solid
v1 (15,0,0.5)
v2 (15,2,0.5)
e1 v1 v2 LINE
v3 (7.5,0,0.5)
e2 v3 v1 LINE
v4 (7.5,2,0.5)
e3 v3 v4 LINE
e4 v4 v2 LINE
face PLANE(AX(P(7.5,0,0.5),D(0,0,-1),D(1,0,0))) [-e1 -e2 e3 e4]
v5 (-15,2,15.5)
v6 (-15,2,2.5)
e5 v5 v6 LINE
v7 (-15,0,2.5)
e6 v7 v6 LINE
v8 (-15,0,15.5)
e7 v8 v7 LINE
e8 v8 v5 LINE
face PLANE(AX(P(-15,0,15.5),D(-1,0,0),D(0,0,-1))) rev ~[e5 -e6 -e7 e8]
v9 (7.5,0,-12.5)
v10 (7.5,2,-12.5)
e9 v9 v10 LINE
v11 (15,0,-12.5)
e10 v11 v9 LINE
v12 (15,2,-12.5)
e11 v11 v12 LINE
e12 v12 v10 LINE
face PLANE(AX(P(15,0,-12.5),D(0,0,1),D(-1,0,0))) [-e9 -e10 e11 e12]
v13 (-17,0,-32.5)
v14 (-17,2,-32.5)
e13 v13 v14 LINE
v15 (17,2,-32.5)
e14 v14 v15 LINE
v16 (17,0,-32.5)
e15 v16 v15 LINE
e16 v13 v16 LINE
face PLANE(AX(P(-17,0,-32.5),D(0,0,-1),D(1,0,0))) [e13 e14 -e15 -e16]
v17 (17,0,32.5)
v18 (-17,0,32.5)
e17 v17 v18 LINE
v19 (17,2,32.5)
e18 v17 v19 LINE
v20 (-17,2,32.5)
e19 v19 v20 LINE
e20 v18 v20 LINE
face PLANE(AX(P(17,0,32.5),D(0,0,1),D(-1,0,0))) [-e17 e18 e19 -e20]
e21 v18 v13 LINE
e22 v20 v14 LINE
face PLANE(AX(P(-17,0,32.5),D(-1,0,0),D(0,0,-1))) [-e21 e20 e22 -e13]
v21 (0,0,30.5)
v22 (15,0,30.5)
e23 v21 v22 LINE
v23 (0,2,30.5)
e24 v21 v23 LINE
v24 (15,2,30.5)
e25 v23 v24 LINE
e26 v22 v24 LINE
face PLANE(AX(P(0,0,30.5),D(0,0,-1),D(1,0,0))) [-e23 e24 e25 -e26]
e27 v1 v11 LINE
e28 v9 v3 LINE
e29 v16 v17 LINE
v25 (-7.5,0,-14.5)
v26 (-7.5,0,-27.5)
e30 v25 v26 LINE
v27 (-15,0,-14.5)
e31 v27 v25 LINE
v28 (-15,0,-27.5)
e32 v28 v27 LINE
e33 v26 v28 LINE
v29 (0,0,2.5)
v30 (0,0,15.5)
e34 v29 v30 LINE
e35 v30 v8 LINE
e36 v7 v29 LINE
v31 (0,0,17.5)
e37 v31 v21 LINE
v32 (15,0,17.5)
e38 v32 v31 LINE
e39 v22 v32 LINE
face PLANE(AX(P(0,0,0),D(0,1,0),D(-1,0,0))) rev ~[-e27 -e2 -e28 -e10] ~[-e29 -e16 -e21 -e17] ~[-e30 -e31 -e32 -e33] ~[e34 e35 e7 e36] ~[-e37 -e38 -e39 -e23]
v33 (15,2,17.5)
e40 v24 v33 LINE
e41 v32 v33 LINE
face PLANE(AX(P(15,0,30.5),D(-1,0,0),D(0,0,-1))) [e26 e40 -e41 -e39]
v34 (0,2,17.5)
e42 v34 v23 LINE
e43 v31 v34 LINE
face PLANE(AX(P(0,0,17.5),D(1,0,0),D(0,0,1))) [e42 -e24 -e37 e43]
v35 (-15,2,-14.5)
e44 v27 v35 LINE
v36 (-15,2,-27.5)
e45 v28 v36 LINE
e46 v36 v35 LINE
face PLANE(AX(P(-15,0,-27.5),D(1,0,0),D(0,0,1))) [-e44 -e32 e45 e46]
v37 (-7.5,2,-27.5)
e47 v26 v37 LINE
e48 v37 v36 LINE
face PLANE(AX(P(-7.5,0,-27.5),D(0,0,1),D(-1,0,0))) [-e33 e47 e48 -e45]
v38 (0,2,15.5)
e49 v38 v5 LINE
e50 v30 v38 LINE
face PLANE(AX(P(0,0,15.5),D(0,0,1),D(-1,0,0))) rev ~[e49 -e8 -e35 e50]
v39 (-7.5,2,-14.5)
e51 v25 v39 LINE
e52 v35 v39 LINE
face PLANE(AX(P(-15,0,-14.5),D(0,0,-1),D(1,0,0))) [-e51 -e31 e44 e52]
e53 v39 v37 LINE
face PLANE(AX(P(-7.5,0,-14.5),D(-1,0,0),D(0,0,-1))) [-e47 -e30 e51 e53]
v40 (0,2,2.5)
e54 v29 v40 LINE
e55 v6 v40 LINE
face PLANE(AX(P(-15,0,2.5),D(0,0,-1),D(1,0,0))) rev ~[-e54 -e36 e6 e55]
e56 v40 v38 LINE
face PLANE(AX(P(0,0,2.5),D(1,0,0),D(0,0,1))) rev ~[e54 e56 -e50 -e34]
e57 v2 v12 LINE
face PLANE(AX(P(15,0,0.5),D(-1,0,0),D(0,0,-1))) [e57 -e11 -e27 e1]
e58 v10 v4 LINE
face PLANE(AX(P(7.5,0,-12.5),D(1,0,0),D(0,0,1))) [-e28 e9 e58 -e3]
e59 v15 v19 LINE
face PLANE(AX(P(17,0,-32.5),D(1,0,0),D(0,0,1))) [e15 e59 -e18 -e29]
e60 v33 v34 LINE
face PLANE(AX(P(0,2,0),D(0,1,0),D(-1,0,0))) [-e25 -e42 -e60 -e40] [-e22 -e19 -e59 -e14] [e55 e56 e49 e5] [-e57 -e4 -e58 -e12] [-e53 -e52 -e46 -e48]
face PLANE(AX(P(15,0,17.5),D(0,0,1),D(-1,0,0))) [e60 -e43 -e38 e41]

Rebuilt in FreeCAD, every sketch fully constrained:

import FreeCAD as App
import Part
import Sketcher
from FreeCAD import Vector

doc = App.newDocument("Part")
body = doc.addObject("PartDesign::Body", "Body")

sketch1 = body.newObject("Sketcher::SketchObject", "Sketch")
sketch1.AttachmentSupport = (doc.getObject("XZ_Plane"), [""])
sketch1.MapMode = "FlatFace"
sketch1.addGeometry(Part.LineSegment(Vector(-17, 32, 0), Vector(17, 32, 0)), False)
sketch1.addGeometry(Part.LineSegment(Vector(17, 32, 0), Vector(17, -32, 0)), False)
sketch1.addGeometry(Part.LineSegment(Vector(17, -32, 0), Vector(-17, -32, 0)), False)
sketch1.addGeometry(Part.LineSegment(Vector(-17, -32, 0), Vector(-17, 32, 0)), False)
sketch1.addGeometry(Part.LineSegment(Vector(15, 0, 0), Vector(8, 0, 0)), False)
sketch1.addGeometry(Part.LineSegment(Vector(8, 0, 0), Vector(8, -12, 0)), False)
sketch1.addGeometry(Part.LineSegment(Vector(8, -12, 0), Vector(15, -12, 0)), False)
sketch1.addGeometry(Part.LineSegment(Vector(15, -12, 0), Vector(15, 0, 0)), False)
sketch1.addGeometry(Part.LineSegment(Vector(-8, -14, 0), Vector(-15, -14, 0)), False)
sketch1.addGeometry(Part.LineSegment(Vector(-15, -14, 0), Vector(-15, -28, 0)), False)
sketch1.addGeometry(Part.LineSegment(Vector(-15, -28, 0), Vector(-8, -28, 0)), False)
sketch1.addGeometry(Part.LineSegment(Vector(-8, -28, 0), Vector(-8, -14, 0)), False)
sketch1.addGeometry(Part.LineSegment(Vector(15, 30, 0), Vector(0, 30, 0)), False)
sketch1.addGeometry(Part.LineSegment(Vector(0, 30, 0), Vector(0, 18, 0)), False)
sketch1.addGeometry(Part.LineSegment(Vector(0, 18, 0), Vector(15, 18, 0)), False)
sketch1.addGeometry(Part.LineSegment(Vector(15, 18, 0), Vector(15, 30, 0)), False)
sketch1.addGeometry(Part.LineSegment(Vector(0, 2, 0), Vector(0, 16, 0)), False)
sketch1.addGeometry(Part.LineSegment(Vector(0, 16, 0), Vector(-15, 16, 0)), False)
sketch1.addGeometry(Part.LineSegment(Vector(-15, 16, 0), Vector(-15, 2, 0)), False)
sketch1.addGeometry(Part.LineSegment(Vector(-15, 2, 0), Vector(0, 2, 0)), False)
sketch1.addConstraint(Sketcher.Constraint("Coincident", 0, 2, 1, 1))
sketch1.addConstraint(Sketcher.Constraint("Coincident", 1, 2, 2, 1))
sketch1.addConstraint(Sketcher.Constraint("Coincident", 2, 2, 3, 1))
sketch1.addConstraint(Sketcher.Constraint("Coincident", 3, 2, 0, 1))
sketch1.addConstraint(Sketcher.Constraint("Coincident", 4, 2, 5, 1))
sketch1.addConstraint(Sketcher.Constraint("Coincident", 5, 2, 6, 1))
sketch1.addConstraint(Sketcher.Constraint("Coincident", 6, 2, 7, 1))
sketch1.addConstraint(Sketcher.Constraint("Coincident", 7, 2, 4, 1))
sketch1.addConstraint(Sketcher.Constraint("Coincident", 8, 2, 9, 1))
sketch1.addConstraint(Sketcher.Constraint("Coincident", 9, 2, 10, 1))
sketch1.addConstraint(Sketcher.Constraint("Coincident", 10, 2, 11, 1))
sketch1.addConstraint(Sketcher.Constraint("Coincident", 11, 2, 8, 1))
sketch1.addConstraint(Sketcher.Constraint("Coincident", 12, 2, 13, 1))
sketch1.addConstraint(Sketcher.Constraint("Coincident", 13, 2, 14, 1))
sketch1.addConstraint(Sketcher.Constraint("Coincident", 14, 2, 15, 1))
sketch1.addConstraint(Sketcher.Constraint("Coincident", 15, 2, 12, 1))
sketch1.addConstraint(Sketcher.Constraint("Coincident", 16, 2, 17, 1))
sketch1.addConstraint(Sketcher.Constraint("Coincident", 17, 2, 18, 1))
sketch1.addConstraint(Sketcher.Constraint("Coincident", 18, 2, 19, 1))
sketch1.addConstraint(Sketcher.Constraint("Coincident", 19, 2, 16, 1))
sketch1.addConstraint(Sketcher.Constraint("Horizontal", 0))
sketch1.addConstraint(Sketcher.Constraint("Vertical", 1))
sketch1.addConstraint(Sketcher.Constraint("Horizontal", 2))
sketch1.addConstraint(Sketcher.Constraint("Vertical", 3))
sketch1.addConstraint(Sketcher.Constraint("Horizontal", 4))
sketch1.addConstraint(Sketcher.Constraint("Vertical", 5))
sketch1.addConstraint(Sketcher.Constraint("Horizontal", 6))
sketch1.addConstraint(Sketcher.Constraint("Vertical", 7))
sketch1.addConstraint(Sketcher.Constraint("Horizontal", 8))
sketch1.addConstraint(Sketcher.Constraint("Vertical", 9))
sketch1.addConstraint(Sketcher.Constraint("Horizontal", 10))
sketch1.addConstraint(Sketcher.Constraint("Vertical", 11))
sketch1.addConstraint(Sketcher.Constraint("Horizontal", 12))
sketch1.addConstraint(Sketcher.Constraint("Vertical", 13))
sketch1.addConstraint(Sketcher.Constraint("Horizontal", 14))
sketch1.addConstraint(Sketcher.Constraint("Vertical", 15))
sketch1.addConstraint(Sketcher.Constraint("Vertical", 16))
sketch1.addConstraint(Sketcher.Constraint("Horizontal", 17))
sketch1.addConstraint(Sketcher.Constraint("Vertical", 18))
sketch1.addConstraint(Sketcher.Constraint("Horizontal", 19))
sketch1.addConstraint(Sketcher.Constraint("Symmetric", 0, 2, 2, 2, -1, 1))
sketch1.addConstraint(Sketcher.Constraint("PointOnObject", 12, 2, -2))
sketch1.addConstraint(Sketcher.Constraint("PointOnObject", 16, 2, -2))
sketch1.addConstraint(Sketcher.Constraint("Vertical", 7, 2, 14, 2))
sketch1.addConstraint(Sketcher.Constraint("Vertical", 9, 2, 17, 2))
sketch1.addConstraint(Sketcher.Constraint("Equal", 6, 8))
sketch1.addConstraint(Sketcher.Constraint("Equal", 14, 17))
sketch1.addConstraint(Sketcher.Constraint("Equal", 7, 9))
sketch1.addConstraint(Sketcher.Constraint("Equal", 11, 13))
sketch1.addConstraint(Sketcher.Constraint("Equal", 15, 16))
sketch1.addConstraint(Sketcher.Constraint("DistanceX", 0, 1, 0, 2, 34.0))
sketch1.addConstraint(Sketcher.Constraint("DistanceX", 12, 2, 12, 1, 15.0))
sketch1.addConstraint(Sketcher.Constraint("DistanceY", 1, 2, 1, 1, 65.0))
sketch1.addConstraint(Sketcher.Constraint("DistanceY", 5, 2, 5, 1, 13.0))
sketch1.addConstraint(Sketcher.Constraint("DistanceX", 4, 2, 4, 1, 7.5))
sketch1.addConstraint(Sketcher.Constraint("DistanceY", 8, 2, 5, 2, 2.0))
sketch1.addConstraint(Sketcher.Constraint("DistanceY", 12, 2, 0, 2, 2.0))
sketch1.addConstraint(Sketcher.Constraint("DistanceY", 16, 2, 13, 2, 2.0))
sketch1.addConstraint(Sketcher.Constraint("DistanceY", 4, 2, 16, 2, 15.0))
pad1 = body.newObject("PartDesign::Pad", "Pad")
pad1.Profile = sketch1
pad1.Length = 2
pad1.Reversed = True

doc.recompute()
